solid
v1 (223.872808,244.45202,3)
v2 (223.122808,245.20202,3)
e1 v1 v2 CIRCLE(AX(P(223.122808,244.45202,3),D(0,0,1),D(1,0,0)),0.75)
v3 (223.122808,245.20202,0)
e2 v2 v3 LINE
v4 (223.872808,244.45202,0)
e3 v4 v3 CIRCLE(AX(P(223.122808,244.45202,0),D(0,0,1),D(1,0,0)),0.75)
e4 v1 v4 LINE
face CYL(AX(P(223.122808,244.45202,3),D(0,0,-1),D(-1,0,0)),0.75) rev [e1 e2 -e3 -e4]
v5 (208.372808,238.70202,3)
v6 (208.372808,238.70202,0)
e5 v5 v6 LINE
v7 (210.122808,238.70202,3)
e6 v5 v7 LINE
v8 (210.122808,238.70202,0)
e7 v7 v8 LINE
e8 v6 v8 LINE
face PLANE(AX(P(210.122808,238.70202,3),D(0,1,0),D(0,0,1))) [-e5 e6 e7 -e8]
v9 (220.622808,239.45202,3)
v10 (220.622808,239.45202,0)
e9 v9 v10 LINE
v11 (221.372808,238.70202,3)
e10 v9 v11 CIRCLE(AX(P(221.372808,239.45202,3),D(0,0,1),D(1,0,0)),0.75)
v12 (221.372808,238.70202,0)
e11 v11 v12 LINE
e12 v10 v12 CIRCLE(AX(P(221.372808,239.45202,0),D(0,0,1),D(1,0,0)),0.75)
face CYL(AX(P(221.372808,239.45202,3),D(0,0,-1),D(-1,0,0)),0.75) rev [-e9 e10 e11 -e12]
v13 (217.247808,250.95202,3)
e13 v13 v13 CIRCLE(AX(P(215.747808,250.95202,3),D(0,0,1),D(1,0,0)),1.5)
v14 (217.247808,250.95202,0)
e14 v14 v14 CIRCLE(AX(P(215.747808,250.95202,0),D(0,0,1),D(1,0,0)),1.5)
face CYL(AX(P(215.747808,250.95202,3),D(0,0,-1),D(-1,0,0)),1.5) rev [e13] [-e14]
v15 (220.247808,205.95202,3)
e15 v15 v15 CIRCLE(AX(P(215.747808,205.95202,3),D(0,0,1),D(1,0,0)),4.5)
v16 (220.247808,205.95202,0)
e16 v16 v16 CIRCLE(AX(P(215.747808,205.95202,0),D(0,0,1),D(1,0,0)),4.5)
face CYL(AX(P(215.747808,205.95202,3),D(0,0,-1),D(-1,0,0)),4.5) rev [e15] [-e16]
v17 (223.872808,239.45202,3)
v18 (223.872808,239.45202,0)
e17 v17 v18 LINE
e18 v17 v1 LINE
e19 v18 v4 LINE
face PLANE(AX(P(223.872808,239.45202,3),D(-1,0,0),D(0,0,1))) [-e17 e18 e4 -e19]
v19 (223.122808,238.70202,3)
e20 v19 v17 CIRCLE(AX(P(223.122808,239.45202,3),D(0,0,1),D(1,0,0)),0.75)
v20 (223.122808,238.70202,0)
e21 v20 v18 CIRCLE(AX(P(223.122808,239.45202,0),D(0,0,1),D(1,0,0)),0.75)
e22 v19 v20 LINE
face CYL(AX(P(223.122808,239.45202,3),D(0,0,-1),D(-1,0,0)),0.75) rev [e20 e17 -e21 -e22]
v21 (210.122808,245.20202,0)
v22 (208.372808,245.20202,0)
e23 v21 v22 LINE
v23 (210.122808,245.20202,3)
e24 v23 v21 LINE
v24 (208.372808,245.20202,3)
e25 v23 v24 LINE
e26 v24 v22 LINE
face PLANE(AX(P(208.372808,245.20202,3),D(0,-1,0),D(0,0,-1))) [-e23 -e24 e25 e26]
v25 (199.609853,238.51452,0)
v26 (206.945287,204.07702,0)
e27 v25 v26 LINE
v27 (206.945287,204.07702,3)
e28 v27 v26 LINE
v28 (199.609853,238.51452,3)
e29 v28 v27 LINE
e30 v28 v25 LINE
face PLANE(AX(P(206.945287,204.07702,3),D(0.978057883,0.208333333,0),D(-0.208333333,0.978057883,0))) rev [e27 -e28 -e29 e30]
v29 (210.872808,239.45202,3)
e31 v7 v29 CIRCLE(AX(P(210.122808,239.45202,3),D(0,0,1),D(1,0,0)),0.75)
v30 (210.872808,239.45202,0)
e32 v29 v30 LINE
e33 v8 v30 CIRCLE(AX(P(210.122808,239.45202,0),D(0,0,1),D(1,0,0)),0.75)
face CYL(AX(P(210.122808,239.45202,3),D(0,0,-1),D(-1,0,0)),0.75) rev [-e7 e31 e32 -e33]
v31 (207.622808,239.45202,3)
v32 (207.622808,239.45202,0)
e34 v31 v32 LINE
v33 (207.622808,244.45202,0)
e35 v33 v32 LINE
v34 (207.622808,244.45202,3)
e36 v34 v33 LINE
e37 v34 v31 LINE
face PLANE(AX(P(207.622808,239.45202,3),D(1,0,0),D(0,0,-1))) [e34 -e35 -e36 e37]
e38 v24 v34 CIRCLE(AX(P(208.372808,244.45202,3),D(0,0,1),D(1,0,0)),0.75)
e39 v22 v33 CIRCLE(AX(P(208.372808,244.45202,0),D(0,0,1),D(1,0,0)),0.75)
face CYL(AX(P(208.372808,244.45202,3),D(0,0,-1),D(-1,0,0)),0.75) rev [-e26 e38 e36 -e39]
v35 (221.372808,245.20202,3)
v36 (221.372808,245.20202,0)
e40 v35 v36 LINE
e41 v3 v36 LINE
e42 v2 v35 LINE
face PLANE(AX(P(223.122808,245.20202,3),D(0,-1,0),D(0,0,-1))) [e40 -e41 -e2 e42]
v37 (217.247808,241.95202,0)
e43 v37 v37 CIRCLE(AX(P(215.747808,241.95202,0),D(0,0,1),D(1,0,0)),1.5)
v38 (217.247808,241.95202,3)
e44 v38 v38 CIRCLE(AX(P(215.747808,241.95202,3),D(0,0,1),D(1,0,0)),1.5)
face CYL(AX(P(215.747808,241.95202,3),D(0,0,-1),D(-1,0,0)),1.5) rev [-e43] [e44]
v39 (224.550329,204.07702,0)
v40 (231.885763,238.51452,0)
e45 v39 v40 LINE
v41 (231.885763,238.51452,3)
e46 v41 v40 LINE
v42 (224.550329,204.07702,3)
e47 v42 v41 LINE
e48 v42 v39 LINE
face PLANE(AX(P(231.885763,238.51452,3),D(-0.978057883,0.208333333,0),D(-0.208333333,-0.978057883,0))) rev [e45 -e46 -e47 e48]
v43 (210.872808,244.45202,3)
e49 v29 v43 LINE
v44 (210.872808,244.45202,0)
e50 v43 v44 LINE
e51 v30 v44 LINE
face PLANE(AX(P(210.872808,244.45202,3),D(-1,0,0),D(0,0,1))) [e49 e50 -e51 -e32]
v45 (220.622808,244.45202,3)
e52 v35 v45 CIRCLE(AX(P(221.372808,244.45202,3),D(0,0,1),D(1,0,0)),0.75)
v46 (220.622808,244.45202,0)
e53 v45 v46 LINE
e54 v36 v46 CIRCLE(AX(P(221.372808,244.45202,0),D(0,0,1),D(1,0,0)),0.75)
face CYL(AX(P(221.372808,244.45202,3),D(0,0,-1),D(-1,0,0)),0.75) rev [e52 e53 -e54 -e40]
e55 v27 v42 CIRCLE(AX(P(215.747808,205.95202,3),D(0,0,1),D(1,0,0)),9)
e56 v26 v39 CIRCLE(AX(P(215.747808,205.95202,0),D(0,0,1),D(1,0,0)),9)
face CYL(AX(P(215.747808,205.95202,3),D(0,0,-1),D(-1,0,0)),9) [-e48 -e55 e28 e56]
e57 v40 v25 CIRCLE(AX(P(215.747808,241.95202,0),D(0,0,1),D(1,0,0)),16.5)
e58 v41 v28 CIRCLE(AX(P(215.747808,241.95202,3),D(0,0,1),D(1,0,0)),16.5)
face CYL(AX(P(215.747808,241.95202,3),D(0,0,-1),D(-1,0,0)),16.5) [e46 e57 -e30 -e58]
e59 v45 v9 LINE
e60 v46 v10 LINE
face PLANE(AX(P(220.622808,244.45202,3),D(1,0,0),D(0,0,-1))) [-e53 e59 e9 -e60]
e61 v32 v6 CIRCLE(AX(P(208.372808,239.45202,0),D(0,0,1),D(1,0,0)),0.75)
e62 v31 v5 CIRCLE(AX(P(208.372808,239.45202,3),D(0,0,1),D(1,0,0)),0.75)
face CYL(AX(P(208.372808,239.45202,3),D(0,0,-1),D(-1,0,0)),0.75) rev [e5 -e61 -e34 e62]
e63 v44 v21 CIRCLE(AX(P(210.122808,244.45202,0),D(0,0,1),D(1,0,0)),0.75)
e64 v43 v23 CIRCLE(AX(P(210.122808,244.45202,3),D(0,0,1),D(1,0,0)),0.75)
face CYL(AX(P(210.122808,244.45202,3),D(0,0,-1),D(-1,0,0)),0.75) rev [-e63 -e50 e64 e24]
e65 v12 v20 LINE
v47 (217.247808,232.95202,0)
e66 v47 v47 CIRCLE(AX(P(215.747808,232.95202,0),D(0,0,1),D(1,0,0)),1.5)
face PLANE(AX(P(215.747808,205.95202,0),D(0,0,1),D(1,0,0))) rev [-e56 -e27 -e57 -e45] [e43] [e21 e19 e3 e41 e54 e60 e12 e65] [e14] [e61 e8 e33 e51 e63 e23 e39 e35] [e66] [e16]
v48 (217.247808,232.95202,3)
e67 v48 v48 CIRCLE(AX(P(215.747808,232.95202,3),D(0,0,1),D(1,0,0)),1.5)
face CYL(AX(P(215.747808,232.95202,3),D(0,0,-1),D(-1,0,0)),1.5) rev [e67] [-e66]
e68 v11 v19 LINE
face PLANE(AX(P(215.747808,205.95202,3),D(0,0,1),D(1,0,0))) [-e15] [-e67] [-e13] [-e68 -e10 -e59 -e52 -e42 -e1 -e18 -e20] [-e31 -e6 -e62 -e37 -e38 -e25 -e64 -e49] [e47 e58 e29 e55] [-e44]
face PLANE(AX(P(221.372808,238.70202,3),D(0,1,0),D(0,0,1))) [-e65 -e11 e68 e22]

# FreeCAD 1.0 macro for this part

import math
import FreeCAD as App
import Part
import Sketcher
from FreeCAD import Vector

doc = App.newDocument("Part")
body = doc.addObject("PartDesign::Body", "Body")

sketch1 = body.newObject("Sketcher::SketchObject", "Sketch")
sketch1.AttachmentSupport = (doc.getObject("XY_Plane"), [""])
sketch1.MapMode = "FlatFace"
sketch1.addGeometry([
    Part.LineSegment(Vector(199.609853, 238.51452, 0), Vector(206.945287, 204.07702, 0)),
    Part.ArcOfCircle(Part.Circle(Vector(215.747808, 205.95202, 0), Vector(0, 0, 1), 9), math.radians(-167.975301), math.radians(-12.024699)),
    Part.LineSegment(Vector(224.550329, 204.07702, 0), Vector(231.885763, 238.51452, 0)),
    Part.ArcOfCircle(Part.Circle(Vector(215.747808, 241.95202, 0), Vector(0, 0, 1), 16.5), math.radians(-12.024699), math.radians(192.024699)),
    Part.Circle(Vector(215.747808, 205.95202, 0), Vector(0, 0, 1), 4.5),
    Part.Circle(Vector(215.747808, 232.95202, 0), Vector(0, 0, 1), 1.5),
    Part.ArcOfCircle(Part.Circle(Vector(223.122808, 244.45202, 0), Vector(0, 0, 1), 0.75), math.radians(0), math.radians(90)),
    Part.LineSegment(Vector(223.872808, 244.45202, 0), Vector(223.872808, 239.45202, 0)),
    Part.ArcOfCircle(Part.Circle(Vector(223.122808, 239.45202, 0), Vector(0, 0, 1), 0.75), math.radians(-90), math.radians(0)),
    Part.LineSegment(Vector(223.122808, 238.70202, 0), Vector(221.372808, 238.70202, 0)),
    Part.ArcOfCircle(Part.Circle(Vector(221.372808, 239.45202, 0), Vector(0, 0, 1), 0.75), math.radians(-180), math.radians(-90)),
    Part.LineSegment(Vector(220.622808, 239.45202, 0), Vector(220.622808, 244.45202, 0)),
    Part.ArcOfCircle(Part.Circle(Vector(221.372808, 244.45202, 0), Vector(0, 0, 1), 0.75), math.radians(90), math.radians(180)),
    Part.LineSegment(Vector(221.372808, 245.20202, 0), Vector(223.122808, 245.20202, 0)),
    Part.Circle(Vector(215.747808, 241.95202, 0), Vector(0, 0, 1), 1.5),
    Part.Circle(Vector(215.747808, 250.95202, 0), Vector(0, 0, 1), 1.5),
    Part.LineSegment(Vector(208.372808, 245.20202, 0), Vector(210.122808, 245.20202, 0)),
    Part.ArcOfCircle(Part.Circle(Vector(210.122808, 244.45202, 0), Vector(0, 0, 1), 0.75), math.radians(0), math.radians(90)),
    Part.LineSegment(Vector(210.872808, 244.45202, 0), Vector(210.872808, 239.45202, 0)),
    Part.ArcOfCircle(Part.Circle(Vector(210.122808, 239.45202, 0), Vector(0, 0, 1), 0.75), math.radians(-90), math.radians(0)),
    Part.LineSegment(Vector(210.122808, 238.70202, 0), Vector(208.372808, 238.70202, 0)),
    Part.ArcOfCircle(Part.Circle(Vector(208.372808, 239.45202, 0), Vector(0, 0, 1), 0.75), math.radians(-180), math.radians(-90)),
    Part.LineSegment(Vector(207.622808, 239.45202, 0), Vector(207.622808, 244.45202, 0)),
    Part.ArcOfCircle(Part.Circle(Vector(208.372808, 244.45202, 0), Vector(0, 0, 1), 0.75), math.radians(90), math.radians(180)),
], False)
sketch1.addConstraint([
    Sketcher.Constraint("Tangent", 0, 2, 1, 1),
    Sketcher.Constraint("Tangent", 1, 2, 2, 1),
    Sketcher.Constraint("Tangent", 2, 2, 3, 1),
    Sketcher.Constraint("Tangent", 3, 2, 0, 1),
    Sketcher.Constraint("Tangent", 6, 1, 7, 1),
    Sketcher.Constraint("Tangent", 7, 2, 8, 2),
    Sketcher.Constraint("Tangent", 8, 1, 9, 1),
    Sketcher.Constraint("Tangent", 9, 2, 10, 2),
    Sketcher.Constraint("Tangent", 10, 1, 11, 1),
    Sketcher.Constraint("Tangent", 11, 2, 12, 2),
    Sketcher.Constraint("Tangent", 12, 1, 13, 1),
    Sketcher.Constraint("Tangent", 13, 2, 6, 2),
    Sketcher.Constraint("Tangent", 16, 2, 17, 2),
    Sketcher.Constraint("Tangent", 17, 1, 18, 1),
    Sketcher.Constraint("Tangent", 18, 2, 19, 2),
    Sketcher.Constraint("Tangent", 19, 1, 20, 1),
    Sketcher.Constraint("Tangent", 20, 2, 21, 2),
    Sketcher.Constraint("Tangent", 21, 1, 22, 1),
    Sketcher.Constraint("Tangent", 22, 2, 23, 2),
    Sketcher.Constraint("Tangent", 23, 1, 16, 1),
    Sketcher.Constraint("Vertical", 7),
    Sketcher.Constraint("Horizontal", 9),
    Sketcher.Constraint("Vertical", 11),
    Sketcher.Constraint("Horizontal", 13),
    Sketcher.Constraint("Horizontal", 16),
    Sketcher.Constraint("Vertical", 18),
    Sketcher.Constraint("Horizontal", 20),
    Sketcher.Constraint("Vertical", 22),
    Sketcher.Constraint("Coincident", 4, 3, 1, 3),
    Sketcher.Constraint("Coincident", 14, 3, 3, 3),
    Sketcher.Constraint("Equal", 6, 8),
    Sketcher.Constraint("Equal", 8, 10),
    Sketcher.Constraint("Equal", 10, 12),
    Sketcher.Constraint("Equal", 5, 14),
    Sketcher.Constraint("Equal", 14, 15),
    Sketcher.Constraint("Equal", 12, 17),
    Sketcher.Constraint("Equal", 17, 19),
    Sketcher.Constraint("Equal", 19, 21),
    Sketcher.Constraint("Equal", 21, 23),
    Sketcher.Constraint("Horizontal", 12, 3, 17, 3),
    Sketcher.Constraint("Horizontal", 10, 3, 19, 3),
    Sketcher.Constraint("Horizontal", 0, 2, 1, 2),
    Sketcher.Constraint("Vertical", 4, 3, 5, 3),
    Sketcher.Constraint("Vertical", 14, 3, 15, 3),
    Sketcher.Constraint("Equal", 13, 16),
    Sketcher.Constraint("Diameter", 4, 9.0),
    Sketcher.Constraint("Diameter", 5, 3.0),
    Sketcher.Constraint("Radius", 1, 9.0),
    Sketcher.Constraint("Radius", 3, 16.5),
    Sketcher.Constraint("DistanceY", 7, 2, 7, 1, 5.0),
    Sketcher.Constraint("Radius", 6, 0.75),
    Sketcher.Constraint("DistanceY", 1, 3, 3, 3, 36.0),
    Sketcher.Constraint("DistanceY", 5, 3, 3, 3, 9.0),
    Sketcher.Constraint("DistanceY", 3, 3, 15, 3, 9.0),
    Sketcher.Constraint("DistanceX", 9, 2, 9, 1, 1.75),
    Sketcher.Constraint("DistanceY", 3, 3, 6, 3, 2.5),
    Sketcher.Constraint("DistanceX", 17, 3, 12, 3, 11.25),
    Sketcher.Constraint("DistanceX", 3, 3, 6, 3, 7.375),
    Sketcher.Constraint("DistanceY", -1, 1, 1, 3, 205.95202),
    Sketcher.Constraint("DistanceX", -1, 1, 1, 2, 224.550329),
])
pad1 = body.newObject("PartDesign::Pad", "Pad")
pad1.Profile = sketch1
pad1.Length = 3

doc.recompute()
